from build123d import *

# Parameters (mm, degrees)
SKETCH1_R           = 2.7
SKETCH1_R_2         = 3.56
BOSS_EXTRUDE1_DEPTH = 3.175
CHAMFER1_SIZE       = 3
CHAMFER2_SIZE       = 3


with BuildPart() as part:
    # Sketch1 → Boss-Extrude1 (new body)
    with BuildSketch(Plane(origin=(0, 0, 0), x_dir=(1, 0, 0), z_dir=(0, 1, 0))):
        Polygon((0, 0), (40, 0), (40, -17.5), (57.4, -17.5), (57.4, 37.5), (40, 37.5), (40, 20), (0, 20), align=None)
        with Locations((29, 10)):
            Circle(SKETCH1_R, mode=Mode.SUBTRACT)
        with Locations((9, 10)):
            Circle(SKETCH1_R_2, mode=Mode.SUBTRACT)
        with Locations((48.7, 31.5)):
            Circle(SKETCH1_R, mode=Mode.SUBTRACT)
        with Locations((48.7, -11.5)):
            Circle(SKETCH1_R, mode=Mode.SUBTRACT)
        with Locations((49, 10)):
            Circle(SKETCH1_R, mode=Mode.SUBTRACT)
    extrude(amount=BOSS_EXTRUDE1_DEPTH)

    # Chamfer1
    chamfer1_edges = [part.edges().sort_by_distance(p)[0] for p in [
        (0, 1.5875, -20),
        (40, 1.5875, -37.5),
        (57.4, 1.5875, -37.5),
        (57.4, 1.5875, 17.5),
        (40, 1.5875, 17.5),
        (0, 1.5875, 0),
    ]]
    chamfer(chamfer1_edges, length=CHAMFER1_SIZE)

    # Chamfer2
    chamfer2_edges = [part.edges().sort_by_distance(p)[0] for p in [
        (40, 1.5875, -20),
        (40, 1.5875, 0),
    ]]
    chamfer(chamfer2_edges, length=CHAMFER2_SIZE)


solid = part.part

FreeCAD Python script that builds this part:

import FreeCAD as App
import Part
import Sketcher


def edges_at(feature, points):
    """Names of the edges that pass closest to the given points."""
    edges = feature.Shape.Edges
    near = lambda p: min(range(len(edges)), key=lambda i: edges[i].distToShape(Part.Vertex(*p))[0])
    return sorted({f"Edge{near(p) + 1}" for p in points})


def add_polygon(sketch, points):
    """Adds a closed chain of lines whose ends are joined by coincident constraints."""
    first, n = sketch.GeometryCount, len(points)
    for a, b in zip(points, points[1:] + points[:1]):
        sketch.addGeometry(Part.LineSegment(App.Vector(*a, 0), App.Vector(*b, 0)), False)
    for i in range(n):
        sketch.addConstraint(Sketcher.Constraint("Coincident", first + i, 2, first + (i + 1) % n, 1))

doc = App.newDocument("Part")
params = doc.addObject("Spreadsheet::Sheet", "Params")
for row, (alias, value) in enumerate([
    ("sketch1_diameter", "5.4 mm"),
    ("sketch1_diameter2", "7.12 mm"),
    ("sketch1_width", "40 mm"),
    ("sketch1_height", "55 mm"),
    ("sketch1_height2", "20 mm"),
    ("pad1_length", "3.175 mm"),
    ("chamfer_size", "3 mm"),
    ("chamfer2_size", "3 mm"),
], start=1):
    params.set(f"A{row}", alias)
    params.set(f"B{row}", "=" + value)
    params.setAlias(f"B{row}", alias)

body = doc.addObject("PartDesign::Body", "Body")

# Sketch on XZ plane
sketch1 = body.newObject("Sketcher::SketchObject", "Sketch")
sketch1.AttachmentSupport = (doc.getObject("XZ_Plane"), [""])
sketch1.MapMode = "FlatFace"
add_polygon(sketch1, [(0, 0), (40, 0), (40, 17.5), (57.4, 17.5), (57.4, -37.5), (40, -37.5), (40, -20), (0, -20)])  # lines 0-7
sketch1.addGeometry(Part.Circle(App.Vector(48.7, 11.5, 0), App.Vector(0, 0, 1), 2.7), False)  # 8
sketch1.addGeometry(Part.Circle(App.Vector(9, -10, 0), App.Vector(0, 0, 1), 3.6), False)  # 9
sketch1.addGeometry(Part.Circle(App.Vector(29, -10, 0), App.Vector(0, 0, 1), 2.7), False)  # 10
sketch1.addGeometry(Part.Circle(App.Vector(49, -10, 0), App.Vector(0, 0, 1), 2.7), False)  # 11
sketch1.addGeometry(Part.Circle(App.Vector(48.7, -31.5, 0), App.Vector(0, 0, 1), 2.7), False)  # 12
sketch1.addConstraint([
    Sketcher.Constraint("Horizontal", 0),
    Sketcher.Constraint("Vertical", 1),
    Sketcher.Constraint("Horizontal", 2),
    Sketcher.Constraint("Vertical", 3),
    Sketcher.Constraint("Horizontal", 4),
    Sketcher.Constraint("Vertical", 5),
    Sketcher.Constraint("Horizontal", 6),
    Sketcher.Constraint("Vertical", 7),
    Sketcher.Constraint("Coincident", 7, 2, -1, 1),
    Sketcher.Constraint("Equal", 8, 10),
    Sketcher.Constraint("Equal", 10, 11),
    Sketcher.Constraint("Equal", 11, 12),
    Sketcher.Constraint("Horizontal", 9, 3, 10, 3),
    Sketcher.Constraint("Horizontal", 10, 3, 11, 3),
    Sketcher.Constraint("Vertical", 8, 3, 12, 3),
    Sketcher.Constraint("Vertical", 1, 2, 4, 2),
    Sketcher.Constraint("Equal", 1, 5),
    Sketcher.Constraint("Diameter", 8, 5.4),
    Sketcher.Constraint("Diameter", 9, 7.12),
    Sketcher.Constraint("DistanceX", 0, 1, 0, 2, 40.0),
    Sketcher.Constraint("DistanceY", 3, 2, 3, 1, 55.0),
    Sketcher.Constraint("DistanceY", 7, 1, 7, 2, 20.0),
    Sketcher.Constraint("DistanceX", 2, 1, 2, 2, 17.4),
    Sketcher.Constraint("DistanceX", -1, 1, 9, 3, 9.0),
    Sketcher.Constraint("DistanceY", 9, 3, -1, 1, 10.0),
    Sketcher.Constraint("DistanceX", -1, 1, 10, 3, 29.0),
    Sketcher.Constraint("DistanceX", -1, 1, 11, 3, 49.0),
    Sketcher.Constraint("DistanceY", 12, 3, 8, 3, 43.0),
    Sketcher.Constraint("DistanceY", 8, 3, 1, 2, 6.0),
    Sketcher.Constraint("DistanceX", -1, 1, 8, 3, 48.7),
])
sketch1.setExpression("Constraints[25]", "Params.sketch1_diameter")
sketch1.setExpression("Constraints[26]", "Params.sketch1_diameter2")
sketch1.setExpression("Constraints[27]", "Params.sketch1_width")
sketch1.setExpression("Constraints[28]", "Params.sketch1_height")
sketch1.setExpression("Constraints[29]", "Params.sketch1_height2")
pad1 = body.newObject("PartDesign::Pad", "Pad")
pad1.Profile = sketch1
pad1.setExpression("Length", "Params.pad1_length")
pad1.Reversed = True
doc.recompute()

chamfer = body.newObject("PartDesign::Chamfer", "Chamfer")
chamfer.Base = (pad1, edges_at(pad1, [
    (0, 1.587, -20),
    (40, 1.587, -37.5),
    (57.4, 1.587, -37.5),
    (57.4, 1.587, 17.5),
    (40, 1.587, 17.5),
    (0, 1.587, 0),
]))
chamfer.setExpression("Size", "Params.chamfer_size")
doc.recompute()

chamfer2 = body.newObject("PartDesign::Chamfer", "Chamfer001")
chamfer2.Base = (chamfer, edges_at(chamfer, [(40, 1.587, -20), (40, 1.587, 0)]))
chamfer2.setExpression("Size", "Params.chamfer2_size")

doc.recompute()
